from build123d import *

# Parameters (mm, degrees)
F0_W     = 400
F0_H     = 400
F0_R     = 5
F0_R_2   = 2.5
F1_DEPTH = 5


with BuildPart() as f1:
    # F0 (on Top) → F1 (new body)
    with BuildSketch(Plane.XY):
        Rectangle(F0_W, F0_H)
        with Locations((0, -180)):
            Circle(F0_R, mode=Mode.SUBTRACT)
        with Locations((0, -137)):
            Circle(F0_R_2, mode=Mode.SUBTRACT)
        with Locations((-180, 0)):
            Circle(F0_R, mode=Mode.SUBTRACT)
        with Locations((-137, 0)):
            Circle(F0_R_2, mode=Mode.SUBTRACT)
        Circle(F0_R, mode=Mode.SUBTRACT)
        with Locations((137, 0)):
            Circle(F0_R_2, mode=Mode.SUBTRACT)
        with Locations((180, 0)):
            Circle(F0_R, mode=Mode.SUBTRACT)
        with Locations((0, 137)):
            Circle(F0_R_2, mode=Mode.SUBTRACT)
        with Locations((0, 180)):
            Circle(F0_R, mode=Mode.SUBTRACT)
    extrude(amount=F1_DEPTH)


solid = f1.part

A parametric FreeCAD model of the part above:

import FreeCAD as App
import Part
import Sketcher

V = App.Vector
Q = App.Units.Quantity

doc = App.newDocument("Part")
params = doc.addObject("Spreadsheet::Sheet", "Params")
for row, (alias, value) in enumerate([
    ("sketch1_diameter", "10 mm"),
    ("sketch1_diameter2", "5 mm"),
    ("sketch1_width", "400 mm"),
    ("pad1_length", "5 mm"),
], start=1):
    params.set(f"A{row}", alias)
    params.set(f"B{row}", "=" + value)
    params.setAlias(f"B{row}", alias)

body = doc.addObject("PartDesign::Body", "Body")

sketch1 = body.newObject("Sketcher::SketchObject", "Sketch")
sketch1.AttachmentSupport = (doc.getObject("XY_Plane"), [""])
sketch1.MapMode = "FlatFace"
sketch1.addGeometry(Part.LineSegment(V(-200, 200, 0), V(-200, -200, 0)), False)
sketch1.addGeometry(Part.LineSegment(V(-200, -200, 0), V(200, -200, 0)), False)
sketch1.addGeometry(Part.LineSegment(V(200, -200, 0), V(200, 200, 0)), False)
sketch1.addGeometry(Part.LineSegment(V(200, 200, 0), V(-200, 200, 0)), False)
sketch1.addGeometry(Part.Circle(V(0, -180, 0), V(0, 0, 1), 5), False)
sketch1.addGeometry(Part.Circle(V(0, -137, 0), V(0, 0, 1), 2.5), False)
sketch1.addGeometry(Part.Circle(V(-180, 0, 0), V(0, 0, 1), 5), False)
sketch1.addGeometry(Part.Circle(V(-137, 0, 0), V(0, 0, 1), 2.5), False)
sketch1.addGeometry(Part.Circle(V(0, 0, 0), V(0, 0, 1), 5), False)
sketch1.addGeometry(Part.Circle(V(137, 0, 0), V(0, 0, 1), 2.5), False)
sketch1.addGeometry(Part.Circle(V(180, 0, 0), V(0, 0, 1), 5), False)
sketch1.addGeometry(Part.Circle(V(0, 137, 0), V(0, 0, 1), 2.5), False)
sketch1.addGeometry(Part.Circle(V(0, 180, 0), V(0, 0, 1), 5), False)
sketch1.addConstraint(Sketcher.Constraint("Coincident", 0, 2, 1, 1))
sketch1.addConstraint(Sketcher.Constraint("Coincident", 1, 2, 2, 1))
sketch1.addConstraint(Sketcher.Constraint("Coincident", 2, 2, 3, 1))
sketch1.addConstraint(Sketcher.Constraint("Coincident", 3, 2, 0, 1))
sketch1.addConstraint(Sketcher.Constraint("Vertical", 0))
sketch1.addConstraint(Sketcher.Constraint("Horizontal", 1))
sketch1.addConstraint(Sketcher.Constraint("Vertical", 2))
sketch1.addConstraint(Sketcher.Constraint("Horizontal", 3))
sketch1.addConstraint(Sketcher.Constraint("Coincident", 8, 3, -1, 1))
sketch1.addConstraint(Sketcher.Constraint("Equal", 4, 6))
sketch1.addConstraint(Sketcher.Constraint("Equal", 5, 7))
sketch1.addConstraint(Sketcher.Constraint("Equal", 6, 8))
sketch1.addConstraint(Sketcher.Constraint("Equal", 7, 9))
sketch1.addConstraint(Sketcher.Constraint("Equal", 8, 10))
sketch1.addConstraint(Sketcher.Constraint("Equal", 9, 11))
sketch1.addConstraint(Sketcher.Constraint("Equal", 10, 12))
sketch1.addConstraint(Sketcher.Constraint("Symmetric", 7, 3, 9, 3, -1, 1))
sketch1.addConstraint(Sketcher.Constraint("Symmetric", 6, 3, 10, 3, -1, 1))
sketch1.addConstraint(Sketcher.Constraint("Symmetric", 5, 3, 11, 3, -1, 1))
sketch1.addConstraint(Sketcher.Constraint("Symmetric", 4, 3, 12, 3, -1, 1))
sketch1.addConstraint(Sketcher.Constraint("Symmetric", 0, 2, 2, 2, -1, 1))
sketch1.addConstraint(Sketcher.Constraint("PointOnObject", 4, 3, -2))
sketch1.addConstraint(Sketcher.Constraint("PointOnObject", 5, 3, -2))
sketch1.addConstraint(Sketcher.Constraint("PointOnObject", 6, 3, -1))
sketch1.addConstraint(Sketcher.Constraint("PointOnObject", 7, 3, -1))
sketch1.addConstraint(Sketcher.Constraint("Equal", 3, 0))
sketch1.addConstraint(Sketcher.Constraint("Diameter", 4, Q("10 mm")))
sketch1.addConstraint(Sketcher.Constraint("Diameter", 5, Q("5 mm")))
sketch1.addConstraint(Sketcher.Constraint("DistanceX", 1, 1, 1, 2, Q("400 mm")))
sketch1.addConstraint(Sketcher.Constraint("DistanceY", 4, 3, -1, 1, Q("180 mm")))
sketch1.addConstraint(Sketcher.Constraint("DistanceY", 5, 3, -1, 1, Q("137 mm")))
sketch1.addConstraint(Sketcher.Constraint("DistanceX", 6, 3, -1, 1, Q("180 mm")))
sketch1.addConstraint(Sketcher.Constraint("DistanceX", 7, 3, -1, 1, Q("137 mm")))
sketch1.setExpression("Constraints[26]", "Params.sketch1_diameter")
sketch1.setExpression("Constraints[27]", "Params.sketch1_diameter2")
sketch1.setExpression("Constraints[28]", "Params.sketch1_width")
pad1 = body.newObject("PartDesign::Pad", "Pad")
pad1.Profile = sketch1
pad1.setExpression("Length", "Params.pad1_length")

doc.recompute()
